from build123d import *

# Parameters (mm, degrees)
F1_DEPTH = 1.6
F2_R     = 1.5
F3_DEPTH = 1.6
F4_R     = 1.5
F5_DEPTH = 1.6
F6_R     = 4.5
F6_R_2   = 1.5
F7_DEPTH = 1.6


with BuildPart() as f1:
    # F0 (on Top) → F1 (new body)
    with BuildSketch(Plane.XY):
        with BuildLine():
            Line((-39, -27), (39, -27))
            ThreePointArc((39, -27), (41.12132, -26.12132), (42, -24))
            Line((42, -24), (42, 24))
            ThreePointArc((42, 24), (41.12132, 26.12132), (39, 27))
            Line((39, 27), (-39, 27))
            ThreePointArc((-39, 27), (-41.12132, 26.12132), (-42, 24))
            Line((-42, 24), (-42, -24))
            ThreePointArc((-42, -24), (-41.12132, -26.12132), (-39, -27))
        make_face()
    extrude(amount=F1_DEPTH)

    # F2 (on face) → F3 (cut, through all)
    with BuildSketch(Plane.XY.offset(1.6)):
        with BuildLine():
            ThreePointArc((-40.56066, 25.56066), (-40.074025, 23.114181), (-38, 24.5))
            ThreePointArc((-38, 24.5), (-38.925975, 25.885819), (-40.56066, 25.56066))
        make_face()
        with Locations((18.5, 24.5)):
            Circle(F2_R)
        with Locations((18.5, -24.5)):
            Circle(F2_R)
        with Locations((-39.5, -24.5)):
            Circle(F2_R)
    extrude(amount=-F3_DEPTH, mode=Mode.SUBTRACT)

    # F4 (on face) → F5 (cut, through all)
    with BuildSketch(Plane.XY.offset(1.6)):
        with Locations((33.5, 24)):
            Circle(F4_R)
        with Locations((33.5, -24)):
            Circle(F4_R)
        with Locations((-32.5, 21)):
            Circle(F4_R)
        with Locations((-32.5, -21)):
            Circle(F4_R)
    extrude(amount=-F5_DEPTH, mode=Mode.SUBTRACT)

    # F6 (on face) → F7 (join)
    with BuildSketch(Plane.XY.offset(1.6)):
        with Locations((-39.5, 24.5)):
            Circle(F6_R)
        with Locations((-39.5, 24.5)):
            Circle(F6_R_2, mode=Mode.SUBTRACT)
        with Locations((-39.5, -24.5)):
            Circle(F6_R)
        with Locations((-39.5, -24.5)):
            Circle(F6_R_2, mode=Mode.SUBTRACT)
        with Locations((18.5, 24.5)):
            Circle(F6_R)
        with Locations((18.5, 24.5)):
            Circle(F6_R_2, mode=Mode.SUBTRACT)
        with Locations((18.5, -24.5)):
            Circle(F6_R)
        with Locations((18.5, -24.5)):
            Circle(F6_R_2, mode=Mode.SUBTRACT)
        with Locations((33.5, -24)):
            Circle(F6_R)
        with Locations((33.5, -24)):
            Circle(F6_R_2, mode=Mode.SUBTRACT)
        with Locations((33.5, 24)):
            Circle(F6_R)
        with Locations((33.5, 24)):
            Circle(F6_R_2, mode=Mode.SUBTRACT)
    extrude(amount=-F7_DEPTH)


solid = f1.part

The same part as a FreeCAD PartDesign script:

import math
import FreeCAD as App
import Part
import Sketcher

V = App.Vector
Q = App.Units.Quantity

doc = App.newDocument("Part")
params = doc.addObject("Spreadsheet::Sheet", "Params")
for row, (alias, value) in enumerate([
    ("sketch1_radius", "3.000001 mm"),
    ("sketch1_width", "78 mm"),
    ("sketch1_height", "48 mm"),
    ("pad1_length", "1.6 mm"),
    ("sketch2_diameter", "3 mm"),
    ("sketch3_diameter", "3 mm"),
    ("sketch4_diameter", "9 mm"),
    ("sketch4_diameter2", "3 mm"),
    ("pad2_length", "1.6 mm"),
], start=1):
    params.set(f"A{row}", alias)
    params.set(f"B{row}", "=" + value)
    params.setAlias(f"B{row}", alias)

body = doc.addObject("PartDesign::Body", "Body")

# Sketch on XY plane
sketch1 = body.newObject("Sketcher::SketchObject", "Sketch")
sketch1.AttachmentSupport = (doc.getObject("XY_Plane"), [""])
sketch1.MapMode = "FlatFace"
sketch1.addGeometry(Part.LineSegment(V(-39, -27, 0), V(39, -27, 0)), False)
sketch1.addGeometry(Part.ArcOfCircle(Part.Circle(V(39, -24, 0), V(0, 0, 1), 3), math.radians(-90), math.radians(0)), False)
sketch1.addGeometry(Part.LineSegment(V(42, -24, 0), V(42, 24, 0)), False)
sketch1.addGeometry(Part.ArcOfCircle(Part.Circle(V(39, 24, 0), V(0, 0, 1), 3), math.radians(0), math.radians(90)), False)
sketch1.addGeometry(Part.LineSegment(V(39, 27, 0), V(-39, 27, 0)), False)
sketch1.addGeometry(Part.ArcOfCircle(Part.Circle(V(-39, 24, 0), V(0, 0, 1), 3), math.radians(90), math.radians(180)), False)
sketch1.addGeometry(Part.LineSegment(V(-42, 24, 0), V(-42, -24, 0)), False)
sketch1.addGeometry(Part.ArcOfCircle(Part.Circle(V(-39, -24, 0), V(0, 0, 1), 3), math.radians(-180), math.radians(-90)), False)
sketch1.addConstraint(Sketcher.Constraint("Tangent", 0, 2, 1, 1))
sketch1.addConstraint(Sketcher.Constraint("Tangent", 1, 2, 2, 1))
sketch1.addConstraint(Sketcher.Constraint("Tangent", 2, 2, 3, 1))
sketch1.addConstraint(Sketcher.Constraint("Tangent", 3, 2, 4, 1))
sketch1.addConstraint(Sketcher.Constraint("Tangent", 4, 2, 5, 1))
sketch1.addConstraint(Sketcher.Constraint("Tangent", 5, 2, 6, 1))
sketch1.addConstraint(Sketcher.Constraint("Tangent", 6, 2, 7, 1))
sketch1.addConstraint(Sketcher.Constraint("Tangent", 7, 2, 0, 1))
sketch1.addConstraint(Sketcher.Constraint("Horizontal", 0))
sketch1.addConstraint(Sketcher.Constraint("Vertical", 2))
sketch1.addConstraint(Sketcher.Constraint("Horizontal", 4))
sketch1.addConstraint(Sketcher.Constraint("Vertical", 6))
sketch1.addConstraint(Sketcher.Constraint("Equal", 1, 3))
sketch1.addConstraint(Sketcher.Constraint("Equal", 3, 5))
sketch1.addConstraint(Sketcher.Constraint("Equal", 5, 7))
sketch1.addConstraint(Sketcher.Constraint("Symmetric", 1, 3, 5, 3, -1, 1))
sketch1.addConstraint(Sketcher.Constraint("Radius", 1, Q("3.000001 mm")))
sketch1.addConstraint(Sketcher.Constraint("DistanceX", 0, 1, 0, 2, Q("78 mm")))
sketch1.addConstraint(Sketcher.Constraint("DistanceY", 2, 1, 2, 2, Q("48 mm")))
sketch1.setExpression("Constraints[16]", "Params.sketch1_radius")
sketch1.setExpression("Constraints[17]", "Params.sketch1_width")
sketch1.setExpression("Constraints[18]", "Params.sketch1_height")
pad1 = body.newObject("PartDesign::Pad", "Pad")
pad1.Profile = sketch1
pad1.setExpression("Length", "Params.pad1_length")

# Sketch on XY plane
sketch2 = body.newObject("Sketcher::SketchObject", "Sketch001")
sketch2.AttachmentSupport = (doc.getObject("XY_Plane"), [""])
sketch2.MapMode = "FlatFace"
sketch2.AttachmentOffset = App.Placement(V(0, 0, 1.6), App.Rotation())
sketch2.addGeometry(Part.ArcOfCircle(Part.Circle(V(-39.5, 24.5, 0), V(0, 0, 1), 1.5), math.radians(135), math.radians(360)), False)
sketch2.addGeometry(Part.ArcOfCircle(Part.Circle(V(-39.5, 24.5, 0), V(0, 0, 1), 1.5), math.radians(0), math.radians(135)), False)
sketch2.addGeometry(Part.Circle(V(18.5, 24.5, 0), V(0, 0, 1), 1.5), False)
sketch2.addGeometry(Part.Circle(V(18.5, -24.5, 0), V(0, 0, 1), 1.5), False)
sketch2.addGeometry(Part.Circle(V(-39.5, -24.5, 0), V(0, 0, 1), 1.5), False)
sketch2.addConstraint(Sketcher.Constraint("Tangent", 0, 1, 1, 2))
sketch2.addConstraint(Sketcher.Constraint("Coincident", 1, 1, 0, 2))
sketch2.addConstraint(Sketcher.Constraint("Equal", 1, 2))
sketch2.addConstraint(Sketcher.Constraint("Equal", 2, 3))
sketch2.addConstraint(Sketcher.Constraint("Equal", 3, 4))
sketch2.addConstraint(Sketcher.Constraint("Symmetric", 2, 3, 3, 3, -1))
sketch2.addConstraint(Sketcher.Constraint("Symmetric", 0, 3, 4, 3, -1))
sketch2.addConstraint(Sketcher.Constraint("Horizontal", 1, 3, 2, 3))
sketch2.addConstraint(Sketcher.Constraint("Horizontal", 2, 3, 1, 1))
sketch2.addConstraint(Sketcher.Constraint("Diameter", 2, Q("3 mm")))
sketch2.addConstraint(Sketcher.Constraint("DistanceX", 1, 1, -1, 1, Q("38 mm")))
sketch2.addConstraint(Sketcher.Constraint("DistanceX", 0, 3, 2, 3, Q("58 mm")))
sketch2.addConstraint(Sketcher.Constraint("DistanceY", 3, 3, 2, 3, Q("49 mm")))
sketch2.addConstraint(Sketcher.Constraint("DistanceX", 0, 1, -1, 1, Q("40.56066 mm")))
sketch2.setExpression("Constraints[9]", "Params.sketch2_diameter")
pocket1 = body.newObject("PartDesign::Pocket", "Pocket")
pocket1.Profile = sketch2
pocket1.Type = "ThroughAll"

# Sketch on XY plane
sketch3 = body.newObject("Sketcher::SketchObject", "Sketch002")
sketch3.AttachmentSupport = (doc.getObject("XY_Plane"), [""])
sketch3.MapMode = "FlatFace"
sketch3.AttachmentOffset = App.Placement(V(0, 0, 1.6), App.Rotation())
sketch3.addGeometry(Part.Circle(V(33.5, 24, 0), V(0, 0, 1), 1.5), False)
sketch3.addGeometry(Part.Circle(V(33.5, -24, 0), V(0, 0, 1), 1.5), False)
sketch3.addGeometry(Part.Circle(V(-32.5, 21, 0), V(0, 0, 1), 1.5), False)
sketch3.addGeometry(Part.Circle(V(-32.5, -21, 0), V(0, 0, 1), 1.5), False)
sketch3.addConstraint(Sketcher.Constraint("Equal", 0, 1))
sketch3.addConstraint(Sketcher.Constraint("Equal", 1, 2))
sketch3.addConstraint(Sketcher.Constraint("Equal", 2, 3))
sketch3.addConstraint(Sketcher.Constraint("Symmetric", 0, 3, 1, 3, -1))
sketch3.addConstraint(Sketcher.Constraint("Symmetric", 2, 3, 3, 3, -1))
sketch3.addConstraint(Sketcher.Constraint("Diameter", 0, Q("3 mm")))
sketch3.addConstraint(Sketcher.Constraint("DistanceY", -1, 1, 0, 3, Q("24 mm")))
sketch3.addConstraint(Sketcher.Constraint("DistanceY", -1, 1, 2, 3, Q("21 mm")))
sketch3.addConstraint(Sketcher.Constraint("DistanceX", 2, 3, 0, 3, Q("66 mm")))
sketch3.addConstraint(Sketcher.Constraint("DistanceX", -1, 1, 0, 3, Q("33.5 mm")))
sketch3.setExpression("Constraints[5]", "Params.sketch3_diameter")
pocket2 = body.newObject("PartDesign::Pocket", "Pocket001")
pocket2.Profile = sketch3
pocket2.Type = "ThroughAll"

# Sketch on XY plane
sketch4 = body.newObject("Sketcher::SketchObject", "Sketch003")
sketch4.AttachmentSupport = (doc.getObject("XY_Plane"), [""])
sketch4.MapMode = "FlatFace"
sketch4.AttachmentOffset = App.Placement(V(0, 0, 1.6), App.Rotation())
sketch4.addGeometry(Part.Circle(V(-39.5, 24.5, 0), V(0, 0, 1), 4.5), False)
sketch4.addGeometry(Part.Circle(V(-39.5, 24.5, 0), V(0, 0, 1), 1.5), False)
sketch4.addGeometry(Part.Circle(V(-39.5, -24.5, 0), V(0, 0, 1), 4.5), False)
sketch4.addGeometry(Part.Circle(V(-39.5, -24.5, 0), V(0, 0, 1), 1.5), False)
sketch4.addGeometry(Part.Circle(V(18.5, 24.5, 0), V(0, 0, 1), 4.5), False)
sketch4.addGeometry(Part.Circle(V(18.5, 24.5, 0), V(0, 0, 1), 1.5), False)
sketch4.addGeometry(Part.Circle(V(18.5, -24.5, 0), V(0, 0, 1), 4.5), False)
sketch4.addGeometry(Part.Circle(V(18.5, -24.5, 0), V(0, 0, 1), 1.5), False)
sketch4.addGeometry(Part.Circle(V(33.5, -24, 0), V(0, 0, 1), 4.5), False)
sketch4.addGeometry(Part.Circle(V(33.5, -24, 0), V(0, 0, 1), 1.5), False)
sketch4.addGeometry(Part.Circle(V(33.5, 24, 0), V(0, 0, 1), 4.5), False)
sketch4.addGeometry(Part.Circle(V(33.5, 24, 0), V(0, 0, 1), 1.5), False)
sketch4.addConstraint(Sketcher.Constraint("Coincident", 1, 3, 0, 3))
sketch4.addConstraint(Sketcher.Constraint("Coincident", 3, 3, 2, 3))
sketch4.addConstraint(Sketcher.Constraint("Coincident", 5, 3, 4, 3))
sketch4.addConstraint(Sketcher.Constraint("Coincident", 7, 3, 6, 3))
sketch4.addConstraint(Sketcher.Constraint("Coincident", 9, 3, 8, 3))
sketch4.addConstraint(Sketcher.Constraint("Coincident", 11, 3, 10, 3))
sketch4.addConstraint(Sketcher.Constraint("Equal", 0, 2))
sketch4.addConstraint(Sketcher.Constraint("Equal", 1, 3))
sketch4.addConstraint(Sketcher.Constraint("Equal", 2, 4))
sketch4.addConstraint(Sketcher.Constraint("Equal", 3, 5))
sketch4.addConstraint(Sketcher.Constraint("Equal", 4, 6))
sketch4.addConstraint(Sketcher.Constraint("Equal", 5, 7))
sketch4.addConstraint(Sketcher.Constraint("Equal", 6, 8))
sketch4.addConstraint(Sketcher.Constraint("Equal", 7, 9))
sketch4.addConstraint(Sketcher.Constraint("Equal", 8, 10))
sketch4.addConstraint(Sketcher.Constraint("Equal", 9, 11))
sketch4.addConstraint(Sketcher.Constraint("Symmetric", 0, 3, 2, 3, -1))
sketch4.addConstraint(Sketcher.Constraint("Symmetric", 4, 3, 6, 3, -1))
sketch4.addConstraint(Sketcher.Constraint("Symmetric", 8, 3, 10, 3, -1))
sketch4.addConstraint(Sketcher.Constraint("Horizontal", 1, 3, 4, 3))
sketch4.addConstraint(Sketcher.Constraint("Diameter", 0, Q("9 mm")))
sketch4.addConstraint(Sketcher.Constraint("Diameter", 1, Q("3 mm")))
sketch4.addConstraint(Sketcher.Constraint("DistanceY", 8, 3, -1, 1, Q("24 mm")))
sketch4.addConstraint(Sketcher.Constraint("DistanceY", 2, 3, 0, 3, Q("49 mm")))
sketch4.addConstraint(Sketcher.Constraint("DistanceX", 0, 3, 4, 3, Q("58 mm")))
sketch4.addConstraint(Sketcher.Constraint("DistanceX", 6, 3, 8, 3, Q("15 mm")))
sketch4.addConstraint(Sketcher.Constraint("DistanceX", 0, 3, -1, 1, Q("39.5 mm")))
sketch4.setExpression("Constraints[20]", "Params.sketch4_diameter")
sketch4.setExpression("Constraints[21]", "Params.sketch4_diameter2")
pad2 = body.newObject("PartDesign::Pad", "Pad001")
pad2.Profile = sketch4
pad2.setExpression("Length", "Params.pad2_length")
pad2.Reversed = True

doc.recompute()
